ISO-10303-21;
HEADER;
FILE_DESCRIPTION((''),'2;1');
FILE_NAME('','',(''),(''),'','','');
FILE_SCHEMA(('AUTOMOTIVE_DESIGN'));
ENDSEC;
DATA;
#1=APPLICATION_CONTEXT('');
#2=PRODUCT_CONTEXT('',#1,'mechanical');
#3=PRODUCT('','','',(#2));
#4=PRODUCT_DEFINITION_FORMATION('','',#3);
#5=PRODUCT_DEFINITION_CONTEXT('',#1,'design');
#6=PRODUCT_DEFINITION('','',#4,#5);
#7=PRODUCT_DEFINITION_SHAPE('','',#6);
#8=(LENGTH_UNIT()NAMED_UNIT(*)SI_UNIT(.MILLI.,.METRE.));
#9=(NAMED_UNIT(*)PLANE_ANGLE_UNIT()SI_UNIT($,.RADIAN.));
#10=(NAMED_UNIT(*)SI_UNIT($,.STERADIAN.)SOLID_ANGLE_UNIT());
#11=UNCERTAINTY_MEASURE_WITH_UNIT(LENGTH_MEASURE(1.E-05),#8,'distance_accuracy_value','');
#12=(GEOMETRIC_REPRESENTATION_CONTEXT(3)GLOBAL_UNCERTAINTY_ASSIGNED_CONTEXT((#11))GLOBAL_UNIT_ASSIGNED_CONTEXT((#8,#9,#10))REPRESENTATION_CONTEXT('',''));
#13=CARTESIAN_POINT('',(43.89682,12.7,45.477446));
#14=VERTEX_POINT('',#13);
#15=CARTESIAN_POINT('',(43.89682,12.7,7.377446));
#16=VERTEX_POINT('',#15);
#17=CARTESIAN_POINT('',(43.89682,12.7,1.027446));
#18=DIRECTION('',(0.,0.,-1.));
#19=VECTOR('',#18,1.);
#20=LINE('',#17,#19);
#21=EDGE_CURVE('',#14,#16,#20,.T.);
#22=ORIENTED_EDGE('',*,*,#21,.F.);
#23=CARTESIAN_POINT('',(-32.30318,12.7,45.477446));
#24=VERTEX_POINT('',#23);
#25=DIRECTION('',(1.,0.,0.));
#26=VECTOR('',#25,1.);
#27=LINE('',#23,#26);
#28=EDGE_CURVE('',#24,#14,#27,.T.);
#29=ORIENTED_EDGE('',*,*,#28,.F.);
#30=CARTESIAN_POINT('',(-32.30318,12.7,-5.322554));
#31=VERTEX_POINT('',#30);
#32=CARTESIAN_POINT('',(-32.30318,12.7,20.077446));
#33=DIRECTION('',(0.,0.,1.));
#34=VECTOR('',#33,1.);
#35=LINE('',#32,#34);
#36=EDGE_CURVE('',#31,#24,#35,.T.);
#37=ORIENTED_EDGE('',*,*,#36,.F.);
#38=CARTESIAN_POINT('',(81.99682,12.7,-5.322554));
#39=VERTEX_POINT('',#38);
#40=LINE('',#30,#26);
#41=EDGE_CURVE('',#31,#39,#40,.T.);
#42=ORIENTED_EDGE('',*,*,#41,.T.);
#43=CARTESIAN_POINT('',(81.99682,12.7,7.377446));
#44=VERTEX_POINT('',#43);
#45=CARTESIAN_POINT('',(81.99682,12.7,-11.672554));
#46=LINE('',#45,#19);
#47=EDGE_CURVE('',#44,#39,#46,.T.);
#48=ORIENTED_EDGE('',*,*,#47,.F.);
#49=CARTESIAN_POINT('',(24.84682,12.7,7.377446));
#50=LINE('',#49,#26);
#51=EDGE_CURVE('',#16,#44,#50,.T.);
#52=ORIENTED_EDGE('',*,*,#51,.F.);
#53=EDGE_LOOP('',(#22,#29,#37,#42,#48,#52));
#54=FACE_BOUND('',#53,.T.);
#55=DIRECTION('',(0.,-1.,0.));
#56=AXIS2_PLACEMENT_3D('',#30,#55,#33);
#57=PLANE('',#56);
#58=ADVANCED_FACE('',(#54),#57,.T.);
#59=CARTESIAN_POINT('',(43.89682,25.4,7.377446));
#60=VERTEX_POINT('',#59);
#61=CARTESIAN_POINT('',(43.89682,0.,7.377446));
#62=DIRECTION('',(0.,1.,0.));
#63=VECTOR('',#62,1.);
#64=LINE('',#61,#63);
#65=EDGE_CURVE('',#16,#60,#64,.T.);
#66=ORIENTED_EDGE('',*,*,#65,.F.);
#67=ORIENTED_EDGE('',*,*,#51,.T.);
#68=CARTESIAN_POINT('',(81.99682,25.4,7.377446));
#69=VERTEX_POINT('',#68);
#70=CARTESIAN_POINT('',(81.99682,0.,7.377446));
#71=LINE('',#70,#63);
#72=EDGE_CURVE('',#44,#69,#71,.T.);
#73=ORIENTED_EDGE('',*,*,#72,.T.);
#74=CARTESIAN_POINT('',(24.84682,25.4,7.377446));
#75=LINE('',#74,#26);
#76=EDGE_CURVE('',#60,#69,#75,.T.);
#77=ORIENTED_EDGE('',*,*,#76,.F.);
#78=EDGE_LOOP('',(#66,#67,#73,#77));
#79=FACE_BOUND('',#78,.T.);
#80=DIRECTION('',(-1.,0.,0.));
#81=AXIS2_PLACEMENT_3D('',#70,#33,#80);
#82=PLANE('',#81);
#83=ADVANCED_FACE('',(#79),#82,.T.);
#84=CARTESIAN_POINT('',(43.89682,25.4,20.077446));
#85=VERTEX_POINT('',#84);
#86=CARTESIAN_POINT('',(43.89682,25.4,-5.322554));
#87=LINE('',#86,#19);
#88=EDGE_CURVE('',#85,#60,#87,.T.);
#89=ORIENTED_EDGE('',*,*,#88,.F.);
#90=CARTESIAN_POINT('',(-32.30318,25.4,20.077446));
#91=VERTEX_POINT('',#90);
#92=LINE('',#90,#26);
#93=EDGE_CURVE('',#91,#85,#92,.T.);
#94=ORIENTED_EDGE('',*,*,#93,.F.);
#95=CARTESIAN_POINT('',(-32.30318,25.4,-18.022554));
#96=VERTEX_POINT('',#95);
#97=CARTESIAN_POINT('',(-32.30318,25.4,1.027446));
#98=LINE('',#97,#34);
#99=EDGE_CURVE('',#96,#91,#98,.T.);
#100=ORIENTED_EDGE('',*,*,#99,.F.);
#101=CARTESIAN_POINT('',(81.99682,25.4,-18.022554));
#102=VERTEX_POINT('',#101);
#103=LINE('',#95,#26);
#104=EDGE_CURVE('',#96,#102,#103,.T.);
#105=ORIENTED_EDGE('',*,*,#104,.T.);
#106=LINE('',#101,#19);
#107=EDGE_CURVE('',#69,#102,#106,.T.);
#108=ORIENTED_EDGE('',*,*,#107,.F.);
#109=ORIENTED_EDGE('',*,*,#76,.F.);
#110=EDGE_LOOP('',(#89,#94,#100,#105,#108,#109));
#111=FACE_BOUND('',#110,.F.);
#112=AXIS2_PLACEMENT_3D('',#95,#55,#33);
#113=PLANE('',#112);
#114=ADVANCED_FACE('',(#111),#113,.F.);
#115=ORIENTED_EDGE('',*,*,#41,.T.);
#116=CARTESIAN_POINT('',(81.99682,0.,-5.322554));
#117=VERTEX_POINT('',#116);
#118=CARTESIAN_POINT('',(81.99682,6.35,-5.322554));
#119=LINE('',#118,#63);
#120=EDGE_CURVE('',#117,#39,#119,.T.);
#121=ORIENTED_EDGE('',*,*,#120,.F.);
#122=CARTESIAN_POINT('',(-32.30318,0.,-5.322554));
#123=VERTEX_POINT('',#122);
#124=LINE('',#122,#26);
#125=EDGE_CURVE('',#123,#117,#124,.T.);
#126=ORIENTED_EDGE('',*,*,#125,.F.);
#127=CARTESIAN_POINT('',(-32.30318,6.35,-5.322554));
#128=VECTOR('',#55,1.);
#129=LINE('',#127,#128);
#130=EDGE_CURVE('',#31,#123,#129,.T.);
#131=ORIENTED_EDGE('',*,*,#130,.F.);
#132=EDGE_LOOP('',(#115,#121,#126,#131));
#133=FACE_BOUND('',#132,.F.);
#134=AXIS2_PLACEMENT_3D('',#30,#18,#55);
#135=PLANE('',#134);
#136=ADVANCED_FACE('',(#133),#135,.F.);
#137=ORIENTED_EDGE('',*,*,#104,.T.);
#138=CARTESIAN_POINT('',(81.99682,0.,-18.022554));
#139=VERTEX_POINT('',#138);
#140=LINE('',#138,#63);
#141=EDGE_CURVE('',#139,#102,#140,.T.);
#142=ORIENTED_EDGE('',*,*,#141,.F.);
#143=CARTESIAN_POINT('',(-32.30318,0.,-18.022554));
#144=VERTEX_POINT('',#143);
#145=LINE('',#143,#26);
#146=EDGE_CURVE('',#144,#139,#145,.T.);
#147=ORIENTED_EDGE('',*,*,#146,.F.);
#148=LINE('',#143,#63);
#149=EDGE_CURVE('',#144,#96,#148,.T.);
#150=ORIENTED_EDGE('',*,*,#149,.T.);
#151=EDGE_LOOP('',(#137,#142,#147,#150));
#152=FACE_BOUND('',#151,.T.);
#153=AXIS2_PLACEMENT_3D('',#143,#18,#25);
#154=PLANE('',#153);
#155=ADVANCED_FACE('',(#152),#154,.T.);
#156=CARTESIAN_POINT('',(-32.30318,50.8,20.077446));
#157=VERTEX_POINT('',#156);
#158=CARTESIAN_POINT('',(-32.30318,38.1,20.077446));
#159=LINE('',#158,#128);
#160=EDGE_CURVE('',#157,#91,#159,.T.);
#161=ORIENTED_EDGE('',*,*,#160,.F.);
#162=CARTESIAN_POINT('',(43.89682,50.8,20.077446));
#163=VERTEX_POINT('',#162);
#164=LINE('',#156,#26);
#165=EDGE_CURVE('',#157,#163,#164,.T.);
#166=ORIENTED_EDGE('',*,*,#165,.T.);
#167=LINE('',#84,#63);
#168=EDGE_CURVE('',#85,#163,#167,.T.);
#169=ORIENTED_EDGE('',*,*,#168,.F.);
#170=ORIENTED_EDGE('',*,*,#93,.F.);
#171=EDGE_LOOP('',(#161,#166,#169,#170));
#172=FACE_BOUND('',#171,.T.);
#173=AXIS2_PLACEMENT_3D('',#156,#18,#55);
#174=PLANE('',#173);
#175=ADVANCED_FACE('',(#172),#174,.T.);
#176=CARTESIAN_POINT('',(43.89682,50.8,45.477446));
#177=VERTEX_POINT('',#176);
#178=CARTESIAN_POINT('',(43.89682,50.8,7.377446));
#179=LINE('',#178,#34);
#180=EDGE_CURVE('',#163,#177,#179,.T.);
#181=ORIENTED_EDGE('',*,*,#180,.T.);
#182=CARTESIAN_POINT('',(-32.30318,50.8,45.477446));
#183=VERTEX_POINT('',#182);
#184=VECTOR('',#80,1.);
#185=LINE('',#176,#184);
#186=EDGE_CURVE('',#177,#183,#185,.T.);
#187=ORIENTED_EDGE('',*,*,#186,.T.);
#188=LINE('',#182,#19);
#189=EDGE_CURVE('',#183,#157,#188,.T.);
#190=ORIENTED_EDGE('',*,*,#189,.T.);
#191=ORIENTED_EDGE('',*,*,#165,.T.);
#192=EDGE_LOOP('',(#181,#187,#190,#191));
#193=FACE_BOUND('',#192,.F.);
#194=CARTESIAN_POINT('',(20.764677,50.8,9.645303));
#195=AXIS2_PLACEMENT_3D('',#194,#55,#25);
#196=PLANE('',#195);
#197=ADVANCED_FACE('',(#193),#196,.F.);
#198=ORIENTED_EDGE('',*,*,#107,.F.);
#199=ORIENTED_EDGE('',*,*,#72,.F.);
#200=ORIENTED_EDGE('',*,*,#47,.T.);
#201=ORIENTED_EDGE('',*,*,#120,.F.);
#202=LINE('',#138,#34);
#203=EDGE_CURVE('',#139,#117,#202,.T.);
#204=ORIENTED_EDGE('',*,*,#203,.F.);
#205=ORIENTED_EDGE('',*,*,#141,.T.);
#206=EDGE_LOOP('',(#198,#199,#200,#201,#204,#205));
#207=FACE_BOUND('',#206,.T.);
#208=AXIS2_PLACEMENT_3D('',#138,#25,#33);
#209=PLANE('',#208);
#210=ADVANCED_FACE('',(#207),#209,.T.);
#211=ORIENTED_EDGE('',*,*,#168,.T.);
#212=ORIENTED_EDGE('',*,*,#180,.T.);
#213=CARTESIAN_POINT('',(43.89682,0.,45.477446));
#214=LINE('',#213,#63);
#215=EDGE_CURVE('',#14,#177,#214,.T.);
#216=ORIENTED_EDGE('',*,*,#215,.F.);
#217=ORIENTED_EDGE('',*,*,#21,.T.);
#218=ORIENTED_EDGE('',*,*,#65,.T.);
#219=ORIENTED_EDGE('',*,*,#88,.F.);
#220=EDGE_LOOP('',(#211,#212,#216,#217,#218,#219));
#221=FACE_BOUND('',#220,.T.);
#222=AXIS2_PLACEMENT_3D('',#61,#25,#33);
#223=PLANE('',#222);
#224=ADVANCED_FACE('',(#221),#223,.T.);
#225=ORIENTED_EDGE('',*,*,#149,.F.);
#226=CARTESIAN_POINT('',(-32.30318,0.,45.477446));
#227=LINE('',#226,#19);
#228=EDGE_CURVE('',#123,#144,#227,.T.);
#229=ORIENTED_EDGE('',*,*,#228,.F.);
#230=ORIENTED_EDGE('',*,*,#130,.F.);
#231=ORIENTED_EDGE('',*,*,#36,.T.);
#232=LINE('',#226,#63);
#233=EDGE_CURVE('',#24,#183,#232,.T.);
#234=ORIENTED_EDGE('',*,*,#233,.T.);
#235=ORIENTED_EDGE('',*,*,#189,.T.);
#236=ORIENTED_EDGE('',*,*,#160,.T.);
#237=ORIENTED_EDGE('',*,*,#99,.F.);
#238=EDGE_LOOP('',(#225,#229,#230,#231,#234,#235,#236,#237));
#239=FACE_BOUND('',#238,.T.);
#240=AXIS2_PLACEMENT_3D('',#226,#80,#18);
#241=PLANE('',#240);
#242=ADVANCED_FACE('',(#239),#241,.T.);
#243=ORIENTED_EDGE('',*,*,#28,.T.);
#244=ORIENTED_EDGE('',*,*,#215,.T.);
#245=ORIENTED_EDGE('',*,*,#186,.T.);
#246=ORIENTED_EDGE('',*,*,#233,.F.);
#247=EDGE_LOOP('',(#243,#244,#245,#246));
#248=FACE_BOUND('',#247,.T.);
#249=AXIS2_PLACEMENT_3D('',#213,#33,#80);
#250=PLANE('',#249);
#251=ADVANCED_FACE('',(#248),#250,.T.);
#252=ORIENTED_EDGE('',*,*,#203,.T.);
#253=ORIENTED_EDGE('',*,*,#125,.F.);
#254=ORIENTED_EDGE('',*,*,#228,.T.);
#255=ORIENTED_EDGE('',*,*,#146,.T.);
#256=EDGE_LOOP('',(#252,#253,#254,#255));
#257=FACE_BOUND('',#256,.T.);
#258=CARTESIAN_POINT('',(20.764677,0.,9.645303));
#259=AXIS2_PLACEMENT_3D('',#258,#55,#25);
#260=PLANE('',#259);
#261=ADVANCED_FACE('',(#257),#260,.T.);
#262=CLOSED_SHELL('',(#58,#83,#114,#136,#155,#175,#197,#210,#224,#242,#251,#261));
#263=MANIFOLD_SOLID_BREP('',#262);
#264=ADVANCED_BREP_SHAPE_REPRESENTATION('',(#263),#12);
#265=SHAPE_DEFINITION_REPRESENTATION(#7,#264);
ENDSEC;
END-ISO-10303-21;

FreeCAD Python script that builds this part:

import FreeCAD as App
import Part
import Sketcher

V = App.Vector
Q = App.Units.Quantity

doc = App.newDocument("Part")
body = doc.addObject("PartDesign::Body", "Body")

# Sketch on XZ plane
sketch1 = doc.addObject("Sketcher::SketchObject", "Sketch")
body.addObject(sketch1)
sketch1.AttachmentSupport = (doc.XZ_Plane, [""])
sketch1.MapMode = "FlatFace"
sketch1.addGeometry([
    Part.LineSegment(V(43.89682, 45.477446, 0), V(-32.30318, 45.477446, 0)),  # 0
    Part.LineSegment(V(-32.30318, 45.477446, 0), V(-32.30318, -18.022554, 0)),  # 1
    Part.LineSegment(V(-32.30318, -18.022554, 0), V(81.99682, -18.022554, 0)),  # 2
    Part.LineSegment(V(81.99682, -18.022554, 0), V(81.99682, 7.377446, 0)),  # 3
    Part.LineSegment(V(81.99682, 7.377446, 0), V(43.89682, 7.377446, 0)),  # 4
    Part.LineSegment(V(43.89682, 7.377446, 0), V(43.89682, 45.477446, 0)),  # 5
], False)
sketch1.addConstraint([
    Sketcher.Constraint("Coincident", 0, 2, 1, 1),
    Sketcher.Constraint("Coincident", 1, 2, 2, 1),
    Sketcher.Constraint("Coincident", 2, 2, 3, 1),
    Sketcher.Constraint("Coincident", 3, 2, 4, 1),
    Sketcher.Constraint("Coincident", 4, 2, 5, 1),
    Sketcher.Constraint("Coincident", 5, 2, 0, 1),
    Sketcher.Constraint("Horizontal", 0),
    Sketcher.Constraint("Vertical", 1),
    Sketcher.Constraint("Horizontal", 2),
    Sketcher.Constraint("Vertical", 3),
    Sketcher.Constraint("Horizontal", 4),
    Sketcher.Constraint("Vertical", 5),
    Sketcher.Constraint("Equal", 4, 5),
    Sketcher.Constraint("DistanceX", 0, 2, 0, 1, Q("3 in")),
    Sketcher.Constraint("DistanceY", 3, 1, 3, 2, Q("1 in")),
    Sketcher.Constraint("DistanceX", 2, 1, 2, 2, Q("4.5 in")),
    Sketcher.Constraint("DistanceX", 0, 2, -1, 1, 32.30318),
    Sketcher.Constraint("DistanceY", -1, 1, 0, 2, 45.477446),
])
pad1 = doc.addObject("PartDesign::Pad", "Pad")
body.addObject(pad1)
pad1.Profile = sketch1
pad1.Length = Q("2 in")
pad1.Reversed = True

# Sketch on YZ plane
sketch2 = doc.addObject("Sketcher::SketchObject", "Sketch001")
body.addObject(sketch2)
sketch2.AttachmentSupport = (doc.YZ_Plane, [""])
sketch2.MapMode = "FlatFace"
sketch2.AttachmentOffset = App.Placement(V(0, 0, -32.30318), App.Rotation())
sketch2.addGeometry([
    Part.LineSegment(V(12.7, 45.477446, 0), V(12.7, -5.322554, 0)),
    Part.LineSegment(V(12.7, -5.322554, 0), V(0, -5.322554, 0)),
    Part.LineSegment(V(0, -5.322554, 0), V(0, 45.477446, 0)),
    Part.LineSegment(V(0, 45.477446, 0), V(12.7, 45.477446, 0)),
], False)
sketch2.addConstraint([
    Sketcher.Constraint("Coincident", 0, 2, 1, 1),
    Sketcher.Constraint("Coincident", 1, 2, 2, 1),
    Sketcher.Constraint("Coincident", 2, 2, 3, 1),
    Sketcher.Constraint("Coincident", 3, 2, 0, 1),
    Sketcher.Constraint("Vertical", 0),
    Sketcher.Constraint("Horizontal", 1),
    Sketcher.Constraint("Vertical", 2),
    Sketcher.Constraint("Horizontal", 3),
    Sketcher.Constraint("PointOnObject", 1, 2, -2),
    Sketcher.Constraint("DistanceY", 0, 2, 0, 1, Q("2 in")),
    Sketcher.Constraint("DistanceX", 1, 2, 1, 1, Q("0.5 in")),
    Sketcher.Constraint("DistanceY", 0, 2, -1, 1, 5.322554),
])
pocket1 = doc.addObject("PartDesign::Pocket", "Pocket")
body.addObject(pocket1)
pocket1.Profile = sketch2
pocket1.Length = Q("4.52 in")
pocket1.Reversed = True

# Sketch on YZ plane
sketch3 = doc.addObject("Sketcher::SketchObject", "Sketch002")
body.addObject(sketch3)
sketch3.AttachmentSupport = (doc.YZ_Plane, [""])
sketch3.MapMode = "FlatFace"
sketch3.AttachmentOffset = App.Placement(V(0, 0, -32.30318), App.Rotation())
sketch3.addGeometry([
    Part.LineSegment(V(50.8, 20.077446, 0), V(50.8, -18.022554, 0)),
    Part.LineSegment(V(50.8, -18.022554, 0), V(25.4, -18.022554, 0)),
    Part.LineSegment(V(25.4, -18.022554, 0), V(25.4, 20.077446, 0)),
    Part.LineSegment(V(25.4, 20.077446, 0), V(50.8, 20.077446, 0)),
], False)
sketch3.addConstraint([
    Sketcher.Constraint("Coincident", 0, 2, 1, 1),
    Sketcher.Constraint("Coincident", 1, 2, 2, 1),
    Sketcher.Constraint("Coincident", 2, 2, 3, 1),
    Sketcher.Constraint("Coincident", 3, 2, 0, 1),
    Sketcher.Constraint("Vertical", 0),
    Sketcher.Constraint("Horizontal", 1),
    Sketcher.Constraint("Vertical", 2),
    Sketcher.Constraint("Horizontal", 3),
    Sketcher.Constraint("DistanceX", 1, 2, 1, 1, Q("1 in")),
    Sketcher.Constraint("DistanceY", 0, 2, 0, 1, Q("1.5 in")),
    Sketcher.Constraint("DistanceX", -1, 1, 0, 2, Q("2 in")),
    Sketcher.Constraint("DistanceY", 0, 2, -1, 1, 18.022554),
])
pocket2 = doc.addObject("PartDesign::Pocket", "Pocket001")
body.addObject(pocket2)
pocket2.Profile = sketch3
pocket2.Length = Q("4.53 in")
pocket2.Reversed = True

doc.recompute()
